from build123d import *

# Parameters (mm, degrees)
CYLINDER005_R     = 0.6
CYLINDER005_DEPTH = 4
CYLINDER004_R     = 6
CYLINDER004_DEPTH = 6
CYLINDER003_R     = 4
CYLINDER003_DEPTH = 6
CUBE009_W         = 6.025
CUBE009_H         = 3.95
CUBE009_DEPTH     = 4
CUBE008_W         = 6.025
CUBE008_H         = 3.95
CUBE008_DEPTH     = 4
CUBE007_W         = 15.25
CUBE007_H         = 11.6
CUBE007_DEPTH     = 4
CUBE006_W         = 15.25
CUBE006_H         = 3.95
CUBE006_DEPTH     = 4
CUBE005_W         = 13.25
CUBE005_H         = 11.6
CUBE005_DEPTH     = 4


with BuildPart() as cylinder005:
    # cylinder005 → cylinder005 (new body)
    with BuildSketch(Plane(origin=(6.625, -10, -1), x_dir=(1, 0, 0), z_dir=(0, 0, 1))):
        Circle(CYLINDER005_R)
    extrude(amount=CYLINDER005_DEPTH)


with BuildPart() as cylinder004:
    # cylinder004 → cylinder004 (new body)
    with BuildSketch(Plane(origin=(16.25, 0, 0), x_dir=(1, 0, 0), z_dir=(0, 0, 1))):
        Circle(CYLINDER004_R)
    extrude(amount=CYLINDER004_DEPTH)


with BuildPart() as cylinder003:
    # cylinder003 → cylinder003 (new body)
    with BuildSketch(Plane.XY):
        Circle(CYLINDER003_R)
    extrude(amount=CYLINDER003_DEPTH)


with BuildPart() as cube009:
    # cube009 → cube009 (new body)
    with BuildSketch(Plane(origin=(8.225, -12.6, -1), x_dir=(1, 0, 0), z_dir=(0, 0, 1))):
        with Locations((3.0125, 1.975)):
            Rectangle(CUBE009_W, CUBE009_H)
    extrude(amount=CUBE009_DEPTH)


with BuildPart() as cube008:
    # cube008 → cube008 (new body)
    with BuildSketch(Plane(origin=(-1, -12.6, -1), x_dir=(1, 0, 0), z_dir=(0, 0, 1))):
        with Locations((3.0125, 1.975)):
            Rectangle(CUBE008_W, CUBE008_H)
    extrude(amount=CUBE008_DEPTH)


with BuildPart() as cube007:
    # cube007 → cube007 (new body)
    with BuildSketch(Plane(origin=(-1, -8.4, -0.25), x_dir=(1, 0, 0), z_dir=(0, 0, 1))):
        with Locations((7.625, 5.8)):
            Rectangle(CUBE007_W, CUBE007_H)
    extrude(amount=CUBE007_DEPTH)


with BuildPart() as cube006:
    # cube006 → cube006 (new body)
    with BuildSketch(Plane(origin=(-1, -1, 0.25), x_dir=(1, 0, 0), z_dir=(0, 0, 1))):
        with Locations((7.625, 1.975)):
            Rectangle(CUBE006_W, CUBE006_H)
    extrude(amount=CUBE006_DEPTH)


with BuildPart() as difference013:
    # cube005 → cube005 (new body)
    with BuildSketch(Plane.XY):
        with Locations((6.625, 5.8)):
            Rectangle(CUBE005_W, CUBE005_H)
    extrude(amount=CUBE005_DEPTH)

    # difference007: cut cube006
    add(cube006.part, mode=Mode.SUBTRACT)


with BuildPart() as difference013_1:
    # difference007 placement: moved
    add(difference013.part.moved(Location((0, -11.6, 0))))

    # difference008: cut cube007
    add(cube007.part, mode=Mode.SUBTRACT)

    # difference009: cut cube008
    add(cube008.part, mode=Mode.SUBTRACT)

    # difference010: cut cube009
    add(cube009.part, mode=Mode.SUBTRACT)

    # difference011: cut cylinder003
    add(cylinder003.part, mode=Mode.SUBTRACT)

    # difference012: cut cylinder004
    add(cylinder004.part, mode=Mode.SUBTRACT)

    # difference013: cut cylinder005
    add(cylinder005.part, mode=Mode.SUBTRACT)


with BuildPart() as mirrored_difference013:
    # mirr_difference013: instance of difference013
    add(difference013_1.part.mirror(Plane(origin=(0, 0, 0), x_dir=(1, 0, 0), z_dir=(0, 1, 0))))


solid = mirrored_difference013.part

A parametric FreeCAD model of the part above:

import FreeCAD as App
import Part
import Sketcher
Q = App.Units.Quantity

doc = App.newDocument("Part")
body = doc.addObject("PartDesign::Body", "Body")

sketch1 = body.newObject("Sketcher::SketchObject", "Sketch")
sketch1.AttachmentSupport = (doc.getObject("XY_Plane"), [""])
sketch1.MapMode = "FlatFace"
sketch1.AttachmentOffset = App.Placement(App.Vector(0, 0, -1), App.Rotation())
sketch1.addGeometry(Part.Circle(App.Vector(6.6, -10, 0), App.Vector(0, 0, 1), 0.6), False)
sketch1.addConstraint([
    Sketcher.Constraint("Diameter", 0, Q("1.2 mm")),
    Sketcher.Constraint("DistanceY", 0, 3, -1, 1, Q("10 mm")),
    Sketcher.Constraint("DistanceX", -1, 1, 0, 3, Q("6.625 mm")),
])
pad1 = body.newObject("PartDesign::Pad", "Pad")
pad1.Profile = sketch1
pad1.Length = 4
body2 = doc.addObject("PartDesign::Body", "Body001")

sketch2 = body2.newObject("Sketcher::SketchObject", "Sketch001")
sketch2.AttachmentSupport = (doc.getObject("XY_Plane001"), [""])
sketch2.MapMode = "FlatFace"
sketch2.addGeometry(Part.Circle(App.Vector(16, 0, 0), App.Vector(0, 0, 1), 6), False)
sketch2.addConstraint([
    Sketcher.Constraint("PointOnObject", 0, 3, -1),
    Sketcher.Constraint("Diameter", 0, Q("12 mm")),
    Sketcher.Constraint("DistanceX", -1, 1, 0, 3, Q("16.25 mm")),
])
pad2 = body2.newObject("PartDesign::Pad", "Pad001")
pad2.Profile = sketch2
pad2.Length = 6
body3 = doc.addObject("PartDesign::Body", "Body002")

sketch3 = body3.newObject("Sketcher::SketchObject", "Sketch002")
sketch3.AttachmentSupport = (doc.getObject("XY_Plane002"), [""])
sketch3.MapMode = "FlatFace"
sketch3.addGeometry(Part.Circle(App.Vector(0, 0, 0), App.Vector(0, 0, 1), 4), False)
sketch3.addConstraint([
    Sketcher.Constraint("Coincident", 0, 3, -1, 1),
    Sketcher.Constraint("Diameter", 0, Q("8 mm")),
])
pad3 = body3.newObject("PartDesign::Pad", "Pad002")
pad3.Profile = sketch3
pad3.Length = 6
body4 = doc.addObject("PartDesign::Body", "Body003")

sketch4 = body4.newObject("Sketcher::SketchObject", "Sketch003")
sketch4.AttachmentSupport = (doc.getObject("XY_Plane003"), [""])
sketch4.MapMode = "FlatFace"
sketch4.AttachmentOffset = App.Placement(App.Vector(0, 0, -1), App.Rotation())
sketch4.addGeometry([
    Part.LineSegment(App.Vector(8.2, -8.7, 0), App.Vector(8.2, -12.6, 0)),
    Part.LineSegment(App.Vector(8.2, -12.6, 0), App.Vector(14.2, -12.6, 0)),
    Part.LineSegment(App.Vector(14.2, -12.6, 0), App.Vector(14.2, -8.7, 0)),
    Part.LineSegment(App.Vector(14.2, -8.7, 0), App.Vector(8.2, -8.7, 0)),
], False)
sketch4.addConstraint([
    Sketcher.Constraint("Coincident", 0, 2, 1, 1),
    Sketcher.Constraint("Coincident", 1, 2, 2, 1),
    Sketcher.Constraint("Coincident", 2, 2, 3, 1),
    Sketcher.Constraint("Coincident", 3, 2, 0, 1),
    Sketcher.Constraint("Vertical", 0),
    Sketcher.Constraint("Horizontal", 1),
    Sketcher.Constraint("Vertical", 2),
    Sketcher.Constraint("Horizontal", 3),
    Sketcher.Constraint("DistanceY", 0, 2, 0, 1, Q("3.95 mm")),
    Sketcher.Constraint("DistanceY", 0, 2, -1, 1, Q("12.6 mm")),
    Sketcher.Constraint("DistanceX", 1, 1, 1, 2, Q("6.025 mm")),
    Sketcher.Constraint("DistanceX", -1, 1, 1, 2, Q("14.25 mm")),
])
pad4 = body4.newObject("PartDesign::Pad", "Pad003")
pad4.Profile = sketch4
pad4.Length = 4
body5 = doc.addObject("PartDesign::Body", "Body004")

sketch5 = body5.newObject("Sketcher::SketchObject", "Sketch004")
sketch5.AttachmentSupport = (doc.getObject("XY_Plane004"), [""])
sketch5.MapMode = "FlatFace"
sketch5.AttachmentOffset = App.Placement(App.Vector(0, 0, -1), App.Rotation())
sketch5.addGeometry([
    Part.LineSegment(App.Vector(-1, -8.7, 0), App.Vector(-1, -12.6, 0)),
    Part.LineSegment(App.Vector(-1, -12.6, 0), App.Vector(5, -12.6, 0)),
    Part.LineSegment(App.Vector(5, -12.6, 0), App.Vector(5, -8.7, 0)),
    Part.LineSegment(App.Vector(5, -8.7, 0), App.Vector(-1, -8.7, 0)),
], False)
sketch5.addConstraint([
    Sketcher.Constraint("Coincident", 0, 2, 1, 1),
    Sketcher.Constraint("Coincident", 1, 2, 2, 1),
    Sketcher.Constraint("Coincident", 2, 2, 3, 1),
    Sketcher.Constraint("Coincident", 3, 2, 0, 1),
    Sketcher.Constraint("Vertical", 0),
    Sketcher.Constraint("Horizontal", 1),
    Sketcher.Constraint("Vertical", 2),
    Sketcher.Constraint("Horizontal", 3),
    Sketcher.Constraint("DistanceX", 0, 2, -1, 1, Q("1 mm")),
    Sketcher.Constraint("DistanceY", 0, 2, 0, 1, Q("3.95 mm")),
    Sketcher.Constraint("DistanceY", 0, 2, -1, 1, Q("12.6 mm")),
    Sketcher.Constraint("DistanceX", 1, 1, 1, 2, Q("6.025 mm")),
])
pad5 = body5.newObject("PartDesign::Pad", "Pad004")
pad5.Profile = sketch5
pad5.Length = 4
body6 = doc.addObject("PartDesign::Body", "Body005")

sketch6 = body6.newObject("Sketcher::SketchObject", "Sketch005")
sketch6.AttachmentSupport = (doc.getObject("XY_Plane005"), [""])
sketch6.MapMode = "FlatFace"
sketch6.AttachmentOffset = App.Placement(App.Vector(0, 0, -0.25), App.Rotation())
sketch6.addGeometry([
    Part.LineSegment(App.Vector(-1, 3, 0), App.Vector(-1, -8, 0)),
    Part.LineSegment(App.Vector(-1, -8, 0), App.Vector(14, -8, 0)),
    Part.LineSegment(App.Vector(14, -8, 0), App.Vector(14, 3, 0)),
    Part.LineSegment(App.Vector(14, 3, 0), App.Vector(-1, 3, 0)),
], False)
sketch6.addConstraint([
    Sketcher.Constraint("Coincident", 0, 2, 1, 1),
    Sketcher.Constraint("Coincident", 1, 2, 2, 1),
    Sketcher.Constraint("Coincident", 2, 2, 3, 1),
    Sketcher.Constraint("Coincident", 3, 2, 0, 1),
    Sketcher.Constraint("Vertical", 0),
    Sketcher.Constraint("Horizontal", 1),
    Sketcher.Constraint("Vertical", 2),
    Sketcher.Constraint("Horizontal", 3),
    Sketcher.Constraint("DistanceY", 0, 2, 0, 1, Q("11.6 mm")),
    Sketcher.Constraint("DistanceX", 0, 2, -1, 1, Q("1 mm")),
    Sketcher.Constraint("DistanceX", 1, 1, 1, 2, Q("15.25 mm")),
    Sketcher.Constraint("DistanceY", 0, 2, -1, 1, Q("8.4 mm")),
])
pad6 = body6.newObject("PartDesign::Pad", "Pad005")
pad6.Profile = sketch6
pad6.Length = 4
body7 = doc.addObject("PartDesign::Body", "Body006")

sketch7 = body7.newObject("Sketcher::SketchObject", "Sketch006")
sketch7.AttachmentSupport = (doc.getObject("XY_Plane006"), [""])
sketch7.MapMode = "FlatFace"
sketch7.AttachmentOffset = App.Placement(App.Vector(0, 0, 0.25), App.Rotation())
sketch7.addGeometry([
    Part.LineSegment(App.Vector(-1, 3, 0), App.Vector(-1, -1, 0)),
    Part.LineSegment(App.Vector(-1, -1, 0), App.Vector(14.2, -1, 0)),
    Part.LineSegment(App.Vector(14.2, -1, 0), App.Vector(14.2, 3, 0)),
    Part.LineSegment(App.Vector(14.2, 3, 0), App.Vector(-1, 3, 0)),
], False)
sketch7.addConstraint([
    Sketcher.Constraint("Coincident", 0, 2, 1, 1),
    Sketcher.Constraint("Coincident", 1, 2, 2, 1),
    Sketcher.Constraint("Coincident", 2, 2, 3, 1),
    Sketcher.Constraint("Coincident", 3, 2, 0, 1),
    Sketcher.Constraint("Vertical", 0),
    Sketcher.Constraint("Horizontal", 1),
    Sketcher.Constraint("Vertical", 2),
    Sketcher.Constraint("Horizontal", 3),
    Sketcher.Constraint("DistanceX", 0, 2, -1, 1, Q("1 mm")),
    Sketcher.Constraint("DistanceY", 0, 2, -1, 1, Q("1 mm")),
    Sketcher.Constraint("DistanceX", 1, 1, 1, 2, Q("15.25 mm")),
    Sketcher.Constraint("DistanceY", 0, 2, 0, 1, Q("3.95 mm")),
])
pad7 = body7.newObject("PartDesign::Pad", "Pad006")
pad7.Profile = sketch7
pad7.Length = 4
body8 = doc.addObject("PartDesign::Body", "Body007")

sketch8 = body8.newObject("Sketcher::SketchObject", "Sketch007")
sketch8.AttachmentSupport = (doc.getObject("XY_Plane007"), [""])
sketch8.MapMode = "FlatFace"
sketch8.addGeometry([
    Part.LineSegment(App.Vector(0, 12, 0), App.Vector(0, 0, 0)),
    Part.LineSegment(App.Vector(0, 0, 0), App.Vector(13, 0, 0)),
    Part.LineSegment(App.Vector(13, 0, 0), App.Vector(13, 12, 0)),
    Part.LineSegment(App.Vector(13, 12, 0), App.Vector(0, 12, 0)),
], False)
sketch8.addConstraint([
    Sketcher.Constraint("Coincident", 0, 2, 1, 1),
    Sketcher.Constraint("Coincident", 1, 2, 2, 1),
    Sketcher.Constraint("Coincident", 2, 2, 3, 1),
    Sketcher.Constraint("Coincident", 3, 2, 0, 1),
    Sketcher.Constraint("Vertical", 0),
    Sketcher.Constraint("Horizontal", 1),
    Sketcher.Constraint("Vertical", 2),
    Sketcher.Constraint("Horizontal", 3),
    Sketcher.Constraint("Coincident", 0, 2, -1, 1),
    Sketcher.Constraint("DistanceY", 0, 2, 0, 1, Q("11.6 mm")),
    Sketcher.Constraint("DistanceX", 1, 1, 1, 2, Q("13.25 mm")),
])
pad8 = body8.newObject("PartDesign::Pad", "Pad007")
pad8.Profile = sketch8
pad8.Length = 4
doc.recompute()

boolean = body8.newObject("PartDesign::Boolean", "Boolean")
boolean.Type = "Cut"
boolean.addObjects([body7])
body9 = doc.addObject("PartDesign::Body", "Body008")
doc.recompute()

body8.Placement = App.Placement(App.Vector(0, -11.6, 0), App.Rotation(App.Vector(0, 0, 1), 0))
boolean2 = body9.newObject("PartDesign::Boolean", "Boolean001")
boolean2.Type = "Fuse"
boolean2.addObjects([body8])
doc.recompute()

boolean3 = body9.newObject("PartDesign::Boolean", "Boolean002")
boolean3.Type = "Cut"
boolean3.addObjects([body6])
doc.recompute()

boolean4 = body9.newObject("PartDesign::Boolean", "Boolean003")
boolean4.Type = "Cut"
boolean4.addObjects([body5])
doc.recompute()

boolean5 = body9.newObject("PartDesign::Boolean", "Boolean004")
boolean5.Type = "Cut"
boolean5.addObjects([body4])
doc.recompute()

boolean6 = body9.newObject("PartDesign::Boolean", "Boolean005")
boolean6.Type = "Cut"
boolean6.addObjects([body3])
doc.recompute()

boolean7 = body9.newObject("PartDesign::Boolean", "Boolean006")
boolean7.Type = "Cut"
boolean7.addObjects([body2])
doc.recompute()

boolean8 = body9.newObject("PartDesign::Boolean", "Boolean007")
boolean8.Type = "Cut"
boolean8.addObjects([body])
body10 = doc.addObject("PartDesign::Body", "Body009")
doc.recompute()

mirroring = doc.addObject("Part::Mirroring", "Mirroring")
mirroring.Source = body9
mirroring.Base = App.Vector(0, 0, 0)
mirroring.Normal = App.Vector(0, 1, 0)
body10.BaseFeature = mirroring
doc.recompute()
body9.Visibility = False
mirroring.Visibility = False

doc.recompute()
